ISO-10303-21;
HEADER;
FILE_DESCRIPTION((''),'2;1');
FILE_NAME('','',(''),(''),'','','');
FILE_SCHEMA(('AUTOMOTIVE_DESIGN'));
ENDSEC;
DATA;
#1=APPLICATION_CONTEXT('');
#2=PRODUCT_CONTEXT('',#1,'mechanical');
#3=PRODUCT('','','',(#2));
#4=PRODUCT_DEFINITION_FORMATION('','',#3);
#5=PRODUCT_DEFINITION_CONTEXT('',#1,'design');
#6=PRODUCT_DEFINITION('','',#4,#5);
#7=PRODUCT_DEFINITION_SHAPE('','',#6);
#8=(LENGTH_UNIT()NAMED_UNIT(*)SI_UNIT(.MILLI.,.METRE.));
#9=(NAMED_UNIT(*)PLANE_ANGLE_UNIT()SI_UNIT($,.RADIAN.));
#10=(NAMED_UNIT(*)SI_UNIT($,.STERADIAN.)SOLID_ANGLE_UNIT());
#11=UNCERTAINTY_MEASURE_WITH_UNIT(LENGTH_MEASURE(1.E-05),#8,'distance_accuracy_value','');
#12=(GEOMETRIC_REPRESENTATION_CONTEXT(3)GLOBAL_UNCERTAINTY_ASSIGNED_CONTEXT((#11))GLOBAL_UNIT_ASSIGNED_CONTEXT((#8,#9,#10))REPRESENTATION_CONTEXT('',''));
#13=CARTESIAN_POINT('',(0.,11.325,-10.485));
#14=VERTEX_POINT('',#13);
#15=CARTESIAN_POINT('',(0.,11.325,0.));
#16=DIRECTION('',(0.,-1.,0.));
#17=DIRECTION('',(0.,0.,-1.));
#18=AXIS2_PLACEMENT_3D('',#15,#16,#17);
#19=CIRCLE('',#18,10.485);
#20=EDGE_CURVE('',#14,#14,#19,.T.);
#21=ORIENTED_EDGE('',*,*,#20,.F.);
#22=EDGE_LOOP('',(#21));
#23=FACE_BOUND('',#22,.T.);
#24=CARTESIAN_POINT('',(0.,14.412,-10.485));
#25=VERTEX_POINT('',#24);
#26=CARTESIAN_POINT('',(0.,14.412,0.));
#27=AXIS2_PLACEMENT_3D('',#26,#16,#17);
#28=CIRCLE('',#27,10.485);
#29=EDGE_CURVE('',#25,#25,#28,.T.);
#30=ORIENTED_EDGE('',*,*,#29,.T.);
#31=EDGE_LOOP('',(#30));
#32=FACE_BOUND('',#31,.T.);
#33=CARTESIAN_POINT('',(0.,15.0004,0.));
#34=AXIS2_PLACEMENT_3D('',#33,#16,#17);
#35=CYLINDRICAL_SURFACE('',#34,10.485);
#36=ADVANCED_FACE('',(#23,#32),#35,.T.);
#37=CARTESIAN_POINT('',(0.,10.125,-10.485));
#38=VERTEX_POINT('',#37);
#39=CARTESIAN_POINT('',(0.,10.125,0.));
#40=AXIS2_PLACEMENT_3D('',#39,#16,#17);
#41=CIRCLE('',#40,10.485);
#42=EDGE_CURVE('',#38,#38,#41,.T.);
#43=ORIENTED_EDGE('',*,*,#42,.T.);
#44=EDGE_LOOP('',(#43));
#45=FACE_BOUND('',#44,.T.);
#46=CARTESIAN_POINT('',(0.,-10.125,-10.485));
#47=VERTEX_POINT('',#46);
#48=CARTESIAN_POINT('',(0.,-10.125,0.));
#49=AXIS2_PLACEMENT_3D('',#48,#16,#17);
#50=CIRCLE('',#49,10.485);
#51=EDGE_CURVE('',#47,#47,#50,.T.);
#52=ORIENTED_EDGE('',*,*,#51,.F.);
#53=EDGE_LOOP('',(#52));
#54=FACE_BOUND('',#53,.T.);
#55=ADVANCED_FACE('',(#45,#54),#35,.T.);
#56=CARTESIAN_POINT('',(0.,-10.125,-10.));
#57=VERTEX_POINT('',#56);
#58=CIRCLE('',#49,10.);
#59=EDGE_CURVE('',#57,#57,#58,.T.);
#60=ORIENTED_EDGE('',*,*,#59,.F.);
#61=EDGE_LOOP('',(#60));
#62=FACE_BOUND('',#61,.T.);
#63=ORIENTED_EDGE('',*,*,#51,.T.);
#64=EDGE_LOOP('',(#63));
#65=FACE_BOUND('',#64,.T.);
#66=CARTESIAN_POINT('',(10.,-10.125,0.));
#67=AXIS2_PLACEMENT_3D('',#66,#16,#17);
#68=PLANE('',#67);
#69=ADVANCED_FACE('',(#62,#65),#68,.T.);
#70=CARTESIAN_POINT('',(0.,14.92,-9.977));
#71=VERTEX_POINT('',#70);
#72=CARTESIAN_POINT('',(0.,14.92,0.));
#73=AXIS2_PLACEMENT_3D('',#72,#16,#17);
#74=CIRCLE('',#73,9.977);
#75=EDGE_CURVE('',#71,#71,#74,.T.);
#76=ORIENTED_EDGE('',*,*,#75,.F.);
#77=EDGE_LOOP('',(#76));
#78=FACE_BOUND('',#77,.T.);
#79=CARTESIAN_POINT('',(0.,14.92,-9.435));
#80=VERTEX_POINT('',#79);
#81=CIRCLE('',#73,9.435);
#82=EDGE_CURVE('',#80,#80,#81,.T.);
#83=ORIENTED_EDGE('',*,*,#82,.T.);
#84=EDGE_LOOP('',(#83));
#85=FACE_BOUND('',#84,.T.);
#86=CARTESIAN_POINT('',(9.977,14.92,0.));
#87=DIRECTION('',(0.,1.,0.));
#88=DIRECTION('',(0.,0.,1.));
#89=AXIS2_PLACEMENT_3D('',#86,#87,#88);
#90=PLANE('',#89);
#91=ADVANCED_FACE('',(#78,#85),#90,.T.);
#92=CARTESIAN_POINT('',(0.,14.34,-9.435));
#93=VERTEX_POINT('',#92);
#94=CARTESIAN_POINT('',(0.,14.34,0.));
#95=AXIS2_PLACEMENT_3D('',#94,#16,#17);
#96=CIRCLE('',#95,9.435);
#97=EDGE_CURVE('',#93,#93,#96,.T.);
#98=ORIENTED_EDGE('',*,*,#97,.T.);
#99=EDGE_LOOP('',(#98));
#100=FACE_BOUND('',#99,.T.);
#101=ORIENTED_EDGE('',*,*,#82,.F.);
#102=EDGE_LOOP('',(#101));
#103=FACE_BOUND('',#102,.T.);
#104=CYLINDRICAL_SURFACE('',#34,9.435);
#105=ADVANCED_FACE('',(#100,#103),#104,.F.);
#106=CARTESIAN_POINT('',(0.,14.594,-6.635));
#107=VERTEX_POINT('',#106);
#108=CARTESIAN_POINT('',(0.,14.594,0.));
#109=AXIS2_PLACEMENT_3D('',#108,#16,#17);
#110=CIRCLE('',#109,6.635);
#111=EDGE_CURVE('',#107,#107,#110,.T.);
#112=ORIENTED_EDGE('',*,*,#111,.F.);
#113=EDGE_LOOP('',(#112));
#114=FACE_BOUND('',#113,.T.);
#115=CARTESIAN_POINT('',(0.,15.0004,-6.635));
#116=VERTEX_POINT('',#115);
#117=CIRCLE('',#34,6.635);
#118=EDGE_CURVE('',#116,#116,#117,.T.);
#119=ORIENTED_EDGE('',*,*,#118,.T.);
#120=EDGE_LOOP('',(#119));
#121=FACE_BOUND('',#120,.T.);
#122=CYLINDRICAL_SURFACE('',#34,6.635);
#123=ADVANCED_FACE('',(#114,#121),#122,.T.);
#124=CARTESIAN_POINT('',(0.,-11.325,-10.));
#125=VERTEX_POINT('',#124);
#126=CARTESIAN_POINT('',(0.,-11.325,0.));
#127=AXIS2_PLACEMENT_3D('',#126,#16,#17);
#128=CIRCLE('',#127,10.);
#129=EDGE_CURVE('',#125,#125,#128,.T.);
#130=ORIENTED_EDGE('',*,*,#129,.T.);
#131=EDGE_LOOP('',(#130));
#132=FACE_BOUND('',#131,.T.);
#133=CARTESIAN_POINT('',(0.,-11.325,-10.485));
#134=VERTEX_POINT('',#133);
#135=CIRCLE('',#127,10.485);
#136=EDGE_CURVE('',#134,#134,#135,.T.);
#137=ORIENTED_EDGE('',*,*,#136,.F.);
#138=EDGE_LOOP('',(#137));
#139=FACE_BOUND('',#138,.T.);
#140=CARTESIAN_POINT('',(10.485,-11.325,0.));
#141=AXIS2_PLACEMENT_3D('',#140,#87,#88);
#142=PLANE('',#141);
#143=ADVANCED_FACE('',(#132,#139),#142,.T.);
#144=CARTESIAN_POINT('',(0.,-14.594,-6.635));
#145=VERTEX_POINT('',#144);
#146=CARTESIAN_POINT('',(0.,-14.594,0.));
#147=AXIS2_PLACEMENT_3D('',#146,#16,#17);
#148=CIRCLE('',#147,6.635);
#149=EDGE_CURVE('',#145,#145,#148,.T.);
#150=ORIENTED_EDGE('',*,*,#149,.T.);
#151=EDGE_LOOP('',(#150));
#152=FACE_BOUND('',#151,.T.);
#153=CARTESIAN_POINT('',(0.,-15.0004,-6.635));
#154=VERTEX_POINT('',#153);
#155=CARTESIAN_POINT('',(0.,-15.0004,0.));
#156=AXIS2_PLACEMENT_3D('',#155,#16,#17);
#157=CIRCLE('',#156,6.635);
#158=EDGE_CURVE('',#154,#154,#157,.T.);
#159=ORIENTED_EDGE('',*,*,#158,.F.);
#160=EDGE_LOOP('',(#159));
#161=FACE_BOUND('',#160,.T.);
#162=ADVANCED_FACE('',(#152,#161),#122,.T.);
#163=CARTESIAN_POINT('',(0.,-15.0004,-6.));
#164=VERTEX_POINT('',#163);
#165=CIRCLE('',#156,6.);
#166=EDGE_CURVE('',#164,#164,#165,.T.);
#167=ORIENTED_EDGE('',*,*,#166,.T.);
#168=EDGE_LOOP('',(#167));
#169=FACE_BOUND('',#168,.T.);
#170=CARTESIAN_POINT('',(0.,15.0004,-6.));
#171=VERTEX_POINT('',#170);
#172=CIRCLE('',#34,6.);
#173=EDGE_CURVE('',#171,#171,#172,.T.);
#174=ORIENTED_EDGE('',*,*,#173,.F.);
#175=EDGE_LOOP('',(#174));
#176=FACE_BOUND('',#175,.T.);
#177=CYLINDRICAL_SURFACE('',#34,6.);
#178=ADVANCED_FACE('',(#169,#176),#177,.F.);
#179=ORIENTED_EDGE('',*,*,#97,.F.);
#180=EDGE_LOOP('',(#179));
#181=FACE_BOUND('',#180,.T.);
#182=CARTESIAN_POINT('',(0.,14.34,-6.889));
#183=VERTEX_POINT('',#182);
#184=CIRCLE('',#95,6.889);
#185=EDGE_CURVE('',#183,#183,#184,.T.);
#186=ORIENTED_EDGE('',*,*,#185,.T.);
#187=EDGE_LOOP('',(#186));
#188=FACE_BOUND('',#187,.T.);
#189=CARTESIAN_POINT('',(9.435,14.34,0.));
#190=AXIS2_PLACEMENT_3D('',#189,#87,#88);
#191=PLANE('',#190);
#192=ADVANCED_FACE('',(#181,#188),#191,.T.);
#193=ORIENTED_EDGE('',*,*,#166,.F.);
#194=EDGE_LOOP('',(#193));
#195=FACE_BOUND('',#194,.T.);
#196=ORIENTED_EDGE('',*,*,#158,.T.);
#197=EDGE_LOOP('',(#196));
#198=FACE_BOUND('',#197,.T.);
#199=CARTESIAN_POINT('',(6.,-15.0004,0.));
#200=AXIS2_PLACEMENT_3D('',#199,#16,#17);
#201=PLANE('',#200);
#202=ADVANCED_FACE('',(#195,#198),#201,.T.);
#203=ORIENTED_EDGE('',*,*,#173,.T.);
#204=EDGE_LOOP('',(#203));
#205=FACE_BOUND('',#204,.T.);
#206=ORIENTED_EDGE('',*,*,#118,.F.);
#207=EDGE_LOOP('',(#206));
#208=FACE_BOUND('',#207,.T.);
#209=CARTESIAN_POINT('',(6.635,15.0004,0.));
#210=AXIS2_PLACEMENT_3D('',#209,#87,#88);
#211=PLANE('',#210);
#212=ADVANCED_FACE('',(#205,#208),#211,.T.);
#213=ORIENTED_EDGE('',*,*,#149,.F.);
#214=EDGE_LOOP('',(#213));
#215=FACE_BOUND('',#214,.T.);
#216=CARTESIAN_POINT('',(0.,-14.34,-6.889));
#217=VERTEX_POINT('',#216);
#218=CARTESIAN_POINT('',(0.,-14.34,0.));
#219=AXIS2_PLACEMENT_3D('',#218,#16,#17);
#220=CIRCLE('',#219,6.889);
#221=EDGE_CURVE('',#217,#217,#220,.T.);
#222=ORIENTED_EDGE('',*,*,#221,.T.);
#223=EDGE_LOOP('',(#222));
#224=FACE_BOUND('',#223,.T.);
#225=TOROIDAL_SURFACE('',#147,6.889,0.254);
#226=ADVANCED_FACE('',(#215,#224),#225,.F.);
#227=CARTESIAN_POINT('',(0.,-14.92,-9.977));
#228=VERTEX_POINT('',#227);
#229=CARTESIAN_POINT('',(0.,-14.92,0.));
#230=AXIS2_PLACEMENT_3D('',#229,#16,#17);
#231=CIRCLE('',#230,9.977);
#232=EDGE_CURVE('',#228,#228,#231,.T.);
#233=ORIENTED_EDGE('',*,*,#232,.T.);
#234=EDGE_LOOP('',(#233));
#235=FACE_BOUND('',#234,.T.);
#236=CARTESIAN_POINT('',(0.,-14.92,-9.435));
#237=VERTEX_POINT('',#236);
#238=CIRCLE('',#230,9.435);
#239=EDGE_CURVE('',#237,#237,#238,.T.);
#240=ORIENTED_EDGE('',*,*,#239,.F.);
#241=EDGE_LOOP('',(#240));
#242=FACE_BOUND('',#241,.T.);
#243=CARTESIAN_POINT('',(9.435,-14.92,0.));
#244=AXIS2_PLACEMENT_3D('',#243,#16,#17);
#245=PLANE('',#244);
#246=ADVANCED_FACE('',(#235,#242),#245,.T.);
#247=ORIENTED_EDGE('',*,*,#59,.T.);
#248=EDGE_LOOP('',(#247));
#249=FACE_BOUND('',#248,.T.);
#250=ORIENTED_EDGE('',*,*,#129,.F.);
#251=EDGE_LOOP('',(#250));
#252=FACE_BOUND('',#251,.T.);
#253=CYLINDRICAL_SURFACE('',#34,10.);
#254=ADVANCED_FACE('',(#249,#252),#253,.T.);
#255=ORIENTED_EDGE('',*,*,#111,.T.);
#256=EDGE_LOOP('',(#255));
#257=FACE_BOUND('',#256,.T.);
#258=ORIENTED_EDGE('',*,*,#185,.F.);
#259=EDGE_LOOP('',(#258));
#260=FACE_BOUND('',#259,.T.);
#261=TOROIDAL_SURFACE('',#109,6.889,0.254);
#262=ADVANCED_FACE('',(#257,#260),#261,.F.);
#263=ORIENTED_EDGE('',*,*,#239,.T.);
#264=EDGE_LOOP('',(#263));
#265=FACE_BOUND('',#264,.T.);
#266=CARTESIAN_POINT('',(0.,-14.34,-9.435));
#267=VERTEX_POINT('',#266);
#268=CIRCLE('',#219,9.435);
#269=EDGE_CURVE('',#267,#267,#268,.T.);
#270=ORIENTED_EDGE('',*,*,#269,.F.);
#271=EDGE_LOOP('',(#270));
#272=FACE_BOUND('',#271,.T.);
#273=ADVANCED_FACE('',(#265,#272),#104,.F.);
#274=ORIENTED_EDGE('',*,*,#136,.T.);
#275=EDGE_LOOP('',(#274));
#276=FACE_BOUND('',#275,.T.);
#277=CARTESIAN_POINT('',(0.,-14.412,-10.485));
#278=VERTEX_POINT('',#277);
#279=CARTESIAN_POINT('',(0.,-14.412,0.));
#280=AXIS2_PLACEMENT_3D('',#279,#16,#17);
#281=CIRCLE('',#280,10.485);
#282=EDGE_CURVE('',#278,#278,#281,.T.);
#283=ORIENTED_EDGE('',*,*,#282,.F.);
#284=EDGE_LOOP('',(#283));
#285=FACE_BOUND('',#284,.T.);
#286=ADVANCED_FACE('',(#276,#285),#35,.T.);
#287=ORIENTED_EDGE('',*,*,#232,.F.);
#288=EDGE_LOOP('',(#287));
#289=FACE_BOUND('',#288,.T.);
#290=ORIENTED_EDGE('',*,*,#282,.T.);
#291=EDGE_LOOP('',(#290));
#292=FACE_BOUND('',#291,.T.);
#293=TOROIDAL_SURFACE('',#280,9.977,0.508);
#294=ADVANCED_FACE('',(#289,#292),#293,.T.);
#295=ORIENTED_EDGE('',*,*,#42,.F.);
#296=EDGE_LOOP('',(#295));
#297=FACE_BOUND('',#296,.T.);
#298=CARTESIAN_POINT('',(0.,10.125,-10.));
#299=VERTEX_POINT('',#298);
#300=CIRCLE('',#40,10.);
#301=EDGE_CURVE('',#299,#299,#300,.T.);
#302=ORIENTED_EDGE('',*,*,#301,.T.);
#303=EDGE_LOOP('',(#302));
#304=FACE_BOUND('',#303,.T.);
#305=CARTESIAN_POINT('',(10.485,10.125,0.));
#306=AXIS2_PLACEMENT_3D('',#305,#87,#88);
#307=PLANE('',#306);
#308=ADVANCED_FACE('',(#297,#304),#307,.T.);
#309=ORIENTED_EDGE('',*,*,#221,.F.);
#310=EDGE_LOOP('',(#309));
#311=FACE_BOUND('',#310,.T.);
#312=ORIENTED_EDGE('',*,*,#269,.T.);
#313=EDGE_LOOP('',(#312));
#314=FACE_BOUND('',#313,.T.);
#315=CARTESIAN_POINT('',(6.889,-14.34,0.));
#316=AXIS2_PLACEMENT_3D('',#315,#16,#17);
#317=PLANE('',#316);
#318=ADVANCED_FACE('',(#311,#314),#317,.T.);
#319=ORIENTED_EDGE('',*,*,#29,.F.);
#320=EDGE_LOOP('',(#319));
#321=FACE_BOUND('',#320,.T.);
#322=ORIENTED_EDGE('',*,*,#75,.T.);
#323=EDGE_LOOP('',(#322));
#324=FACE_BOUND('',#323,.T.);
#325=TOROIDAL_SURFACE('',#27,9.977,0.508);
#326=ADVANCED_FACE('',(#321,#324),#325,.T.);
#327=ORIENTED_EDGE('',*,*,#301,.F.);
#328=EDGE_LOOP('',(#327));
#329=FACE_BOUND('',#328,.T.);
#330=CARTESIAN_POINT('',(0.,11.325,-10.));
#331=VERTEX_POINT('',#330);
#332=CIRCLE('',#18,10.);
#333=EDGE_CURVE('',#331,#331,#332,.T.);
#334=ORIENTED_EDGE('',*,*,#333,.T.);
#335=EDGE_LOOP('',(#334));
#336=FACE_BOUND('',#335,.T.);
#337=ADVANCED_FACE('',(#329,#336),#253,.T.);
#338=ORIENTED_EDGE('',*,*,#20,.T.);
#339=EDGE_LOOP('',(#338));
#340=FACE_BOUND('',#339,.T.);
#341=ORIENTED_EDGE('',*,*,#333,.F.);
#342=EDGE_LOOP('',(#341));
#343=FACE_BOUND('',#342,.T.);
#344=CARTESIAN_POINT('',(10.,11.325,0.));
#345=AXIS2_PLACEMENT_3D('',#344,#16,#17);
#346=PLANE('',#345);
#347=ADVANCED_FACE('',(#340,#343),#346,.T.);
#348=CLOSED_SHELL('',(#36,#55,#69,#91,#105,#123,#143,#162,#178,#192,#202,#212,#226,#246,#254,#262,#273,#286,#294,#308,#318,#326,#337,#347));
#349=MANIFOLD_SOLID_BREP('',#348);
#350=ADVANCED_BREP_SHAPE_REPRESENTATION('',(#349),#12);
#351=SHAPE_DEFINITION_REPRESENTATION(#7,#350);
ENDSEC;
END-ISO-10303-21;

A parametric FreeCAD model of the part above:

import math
import FreeCAD as App
import Part
import Sketcher
Q = App.Units.Quantity

doc = App.newDocument("Part")
body = doc.addObject("PartDesign::Body", "Body")

# Sketch on XY plane
sketch1 = body.newObject("Sketcher::SketchObject", "Sketch")
sketch1.AttachmentSupport = (doc.getObject("XY_Plane"), [""])
sketch1.MapMode = "FlatFace"
sketch1.addGeometry([
    Part.LineSegment(App.Vector(6.635, 15.0004, 0), App.Vector(6, 15.0004, 0)),  # 0
    Part.LineSegment(App.Vector(6, 15.0004, 0), App.Vector(6, -15.0004, 0)),  # 1
    Part.LineSegment(App.Vector(6, -15.0004, 0), App.Vector(6.635, -15.0004, 0)),  # 2
    Part.LineSegment(App.Vector(6.635, -15.0004, 0), App.Vector(6.635, -14.594, 0)),  # 3
    Part.ArcOfCircle(Part.Circle(App.Vector(6.889, -14.594, 0), App.Vector(0, 0, 1), 0.254), math.radians(90), math.radians(180)),  # 4
    Part.LineSegment(App.Vector(6.889, -14.34, 0), App.Vector(9.435, -14.34, 0)),  # 5
    Part.LineSegment(App.Vector(9.435, -14.34, 0), App.Vector(9.435, -14.92, 0)),  # 6
    Part.LineSegment(App.Vector(9.435, -14.92, 0), App.Vector(9.977, -14.92, 0)),  # 7
    Part.ArcOfCircle(Part.Circle(App.Vector(9.977, -14.412, 0), App.Vector(0, 0, 1), 0.508), math.radians(-90), math.radians(0)),  # 8
    Part.LineSegment(App.Vector(10.485, -14.412, 0), App.Vector(10.485, -11.325, 0)),  # 9
    Part.LineSegment(App.Vector(10.485, -11.325, 0), App.Vector(10, -11.325, 0)),  # 10
    Part.LineSegment(App.Vector(10, -11.325, 0), App.Vector(10, -10.125, 0)),  # 11
    Part.LineSegment(App.Vector(10, -10.125, 0), App.Vector(10.485, -10.125, 0)),  # 12
    Part.LineSegment(App.Vector(10.485, -10.125, 0), App.Vector(10.485, 10.125, 0)),  # 13
    Part.LineSegment(App.Vector(10.485, 10.125, 0), App.Vector(10, 10.125, 0)),  # 14
    Part.LineSegment(App.Vector(10, 10.125, 0), App.Vector(10, 11.325, 0)),  # 15
    Part.LineSegment(App.Vector(10, 11.325, 0), App.Vector(10.485, 11.325, 0)),  # 16
    Part.LineSegment(App.Vector(10.485, 11.325, 0), App.Vector(10.485, 14.412, 0)),  # 17
    Part.ArcOfCircle(Part.Circle(App.Vector(9.977, 14.412, 0), App.Vector(0, 0, 1), 0.508), math.radians(0), math.radians(90)),  # 18
    Part.LineSegment(App.Vector(9.977, 14.92, 0), App.Vector(9.435, 14.92, 0)),  # 19
    Part.LineSegment(App.Vector(9.435, 14.92, 0), App.Vector(9.435, 14.34, 0)),  # 20
    Part.LineSegment(App.Vector(9.435, 14.34, 0), App.Vector(6.889, 14.34, 0)),  # 21
    Part.ArcOfCircle(Part.Circle(App.Vector(6.889, 14.594, 0), App.Vector(0, 0, 1), 0.254), math.radians(-180), math.radians(-90)),  # 22
    Part.LineSegment(App.Vector(6.635, 14.594, 0), App.Vector(6.635, 15.0004, 0)),  # 23
], False)
sketch1.addConstraint([
    Sketcher.Constraint("Coincident", 0, 2, 1, 1),
    Sketcher.Constraint("Coincident", 1, 2, 2, 1),
    Sketcher.Constraint("Coincident", 2, 2, 3, 1),
    Sketcher.Constraint("Tangent", 3, 2, 4, 2),
    Sketcher.Constraint("Tangent", 4, 1, 5, 1),
    Sketcher.Constraint("Coincident", 5, 2, 6, 1),
    Sketcher.Constraint("Coincident", 6, 2, 7, 1),
    Sketcher.Constraint("Tangent", 7, 2, 8, 1),
    Sketcher.Constraint("Tangent", 8, 2, 9, 1),
    Sketcher.Constraint("Coincident", 9, 2, 10, 1),
    Sketcher.Constraint("Coincident", 10, 2, 11, 1),
    Sketcher.Constraint("Coincident", 11, 2, 12, 1),
    Sketcher.Constraint("Coincident", 12, 2, 13, 1),
    Sketcher.Constraint("Coincident", 13, 2, 14, 1),
    Sketcher.Constraint("Coincident", 14, 2, 15, 1),
    Sketcher.Constraint("Coincident", 15, 2, 16, 1),
    Sketcher.Constraint("Coincident", 16, 2, 17, 1),
    Sketcher.Constraint("Tangent", 17, 2, 18, 1),
    Sketcher.Constraint("Tangent", 18, 2, 19, 1),
    Sketcher.Constraint("Coincident", 19, 2, 20, 1),
    Sketcher.Constraint("Coincident", 20, 2, 21, 1),
    Sketcher.Constraint("Tangent", 21, 2, 22, 2),
    Sketcher.Constraint("Tangent", 22, 1, 23, 1),
    Sketcher.Constraint("Coincident", 23, 2, 0, 1),
    Sketcher.Constraint("Horizontal", 0),
    Sketcher.Constraint("Vertical", 1),
    Sketcher.Constraint("Horizontal", 2),
    Sketcher.Constraint("Vertical", 3),
    Sketcher.Constraint("Horizontal", 5),
    Sketcher.Constraint("Vertical", 6),
    Sketcher.Constraint("Horizontal", 7),
    Sketcher.Constraint("Vertical", 9),
    Sketcher.Constraint("Horizontal", 10),
    Sketcher.Constraint("Vertical", 11),
    Sketcher.Constraint("Horizontal", 12),
    Sketcher.Constraint("Vertical", 13),
    Sketcher.Constraint("Horizontal", 14),
    Sketcher.Constraint("Vertical", 15),
    Sketcher.Constraint("Horizontal", 16),
    Sketcher.Constraint("Vertical", 17),
    Sketcher.Constraint("Horizontal", 19),
    Sketcher.Constraint("Vertical", 20),
    Sketcher.Constraint("Horizontal", 21),
    Sketcher.Constraint("Vertical", 23),
    Sketcher.Constraint("Equal", 8, 18),
    Sketcher.Constraint("Equal", 4, 22),
    Sketcher.Constraint("Symmetric", 8, 3, 18, 3, -1),
    Sketcher.Constraint("Symmetric", 4, 3, 22, 3, -1),
    Sketcher.Constraint("Symmetric", 11, 2, 14, 2, -1),
    Sketcher.Constraint("Vertical", 9, 2, 12, 2),
    Sketcher.Constraint("Vertical", 6, 2, 19, 2),
    Sketcher.Constraint("Equal", 11, 15),
    Sketcher.Constraint("Equal", 3, 23),
    Sketcher.Constraint("Radius", 4, Q("0.01 in")),
    Sketcher.Constraint("Radius", 8, Q("0.02 in")),
    Sketcher.Constraint("DistanceX", 0, 2, 0, 1, Q("0.025 in")),
    Sketcher.Constraint("DistanceY", 3, 1, 3, 2, Q("0.016 in")),
    Sketcher.Constraint("DistanceX", 5, 1, 5, 2, Q("2.546 mm")),
    Sketcher.Constraint("DistanceX", 7, 1, 7, 2, Q("0.542 mm")),
    Sketcher.Constraint("DistanceX", 10, 2, 10, 1, Q("0.485 mm")),
    Sketcher.Constraint("DistanceY", 1, 2, 1, 1, Q("30.0008 mm")),
    Sketcher.Constraint("DistanceY", 6, 2, 6, 1, Q("0.58 mm")),
    Sketcher.Constraint("DistanceY", 9, 1, 9, 2, Q("3.087 mm")),
    Sketcher.Constraint("DistanceY", 11, 1, 11, 2, Q("1.2 mm")),
    Sketcher.Constraint("DistanceX", -1, 1, 4, 3, Q("6.889 mm")),
])
revolution = body.newObject("PartDesign::Revolution", "Revolution")
revolution.Profile = sketch1
revolution.ReferenceAxis = (sketch1, ["V_Axis"])
revolution.Angle = 360

doc.recompute()
